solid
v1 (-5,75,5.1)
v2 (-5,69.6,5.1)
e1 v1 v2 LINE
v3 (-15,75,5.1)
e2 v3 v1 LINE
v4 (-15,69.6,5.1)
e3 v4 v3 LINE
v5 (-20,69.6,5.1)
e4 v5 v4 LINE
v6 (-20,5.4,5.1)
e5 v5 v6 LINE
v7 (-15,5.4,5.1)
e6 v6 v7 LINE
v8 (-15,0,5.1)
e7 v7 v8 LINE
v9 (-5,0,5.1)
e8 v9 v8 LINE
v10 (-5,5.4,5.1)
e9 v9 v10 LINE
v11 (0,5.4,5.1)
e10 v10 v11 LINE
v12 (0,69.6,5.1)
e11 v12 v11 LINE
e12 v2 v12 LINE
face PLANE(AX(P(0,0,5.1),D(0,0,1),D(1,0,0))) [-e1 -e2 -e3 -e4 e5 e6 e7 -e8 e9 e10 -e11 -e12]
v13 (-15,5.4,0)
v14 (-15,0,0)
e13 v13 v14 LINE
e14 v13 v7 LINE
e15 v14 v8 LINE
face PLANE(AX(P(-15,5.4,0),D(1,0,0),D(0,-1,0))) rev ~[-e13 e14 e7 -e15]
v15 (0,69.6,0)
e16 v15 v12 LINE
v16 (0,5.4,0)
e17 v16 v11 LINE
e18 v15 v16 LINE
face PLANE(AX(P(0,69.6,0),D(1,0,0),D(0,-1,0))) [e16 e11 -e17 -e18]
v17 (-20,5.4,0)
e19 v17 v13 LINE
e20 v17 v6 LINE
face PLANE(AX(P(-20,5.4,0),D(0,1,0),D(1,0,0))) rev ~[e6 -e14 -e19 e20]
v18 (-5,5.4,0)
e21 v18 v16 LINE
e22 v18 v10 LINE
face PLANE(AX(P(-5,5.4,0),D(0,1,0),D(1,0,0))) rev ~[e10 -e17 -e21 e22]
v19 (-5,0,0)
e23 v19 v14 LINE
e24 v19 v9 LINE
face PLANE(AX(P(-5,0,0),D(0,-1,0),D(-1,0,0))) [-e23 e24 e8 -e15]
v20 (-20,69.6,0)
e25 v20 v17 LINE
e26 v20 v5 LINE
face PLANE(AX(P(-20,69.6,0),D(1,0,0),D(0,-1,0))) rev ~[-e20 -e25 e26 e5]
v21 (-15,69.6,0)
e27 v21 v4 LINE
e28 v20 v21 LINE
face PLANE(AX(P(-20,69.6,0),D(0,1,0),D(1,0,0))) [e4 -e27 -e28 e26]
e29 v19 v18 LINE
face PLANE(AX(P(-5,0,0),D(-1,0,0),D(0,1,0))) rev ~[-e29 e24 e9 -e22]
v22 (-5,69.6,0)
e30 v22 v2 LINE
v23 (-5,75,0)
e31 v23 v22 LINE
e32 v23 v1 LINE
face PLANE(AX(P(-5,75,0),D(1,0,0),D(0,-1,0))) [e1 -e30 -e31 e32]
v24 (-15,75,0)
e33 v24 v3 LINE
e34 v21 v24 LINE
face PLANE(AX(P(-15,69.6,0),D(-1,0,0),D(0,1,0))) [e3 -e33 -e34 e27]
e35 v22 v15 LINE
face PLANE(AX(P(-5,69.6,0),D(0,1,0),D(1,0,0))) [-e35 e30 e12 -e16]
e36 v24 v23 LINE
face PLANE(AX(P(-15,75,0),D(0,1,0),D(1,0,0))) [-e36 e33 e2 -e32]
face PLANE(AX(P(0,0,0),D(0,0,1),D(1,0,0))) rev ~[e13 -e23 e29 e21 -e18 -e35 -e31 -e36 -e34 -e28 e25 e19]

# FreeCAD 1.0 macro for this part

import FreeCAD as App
import Part
import Sketcher
Q = App.Units.Quantity

doc = App.newDocument("Part")
body = doc.addObject("PartDesign::Body", "Body")

sketch1 = doc.addObject("Sketcher::SketchObject", "Sketch")
body.addObject(sketch1)
sketch1.AttachmentSupport = (doc.XY_Plane, [""])
sketch1.MapMode = "FlatFace"
sketch1.addGeometry([
    Part.LineSegment(App.Vector(-15, 0, 0), App.Vector(-5, 0, 0)),
    Part.LineSegment(App.Vector(-5, 0, 0), App.Vector(-5, 5, 0)),
    Part.LineSegment(App.Vector(-5, 5, 0), App.Vector(0, 5, 0)),
    Part.LineSegment(App.Vector(0, 5, 0), App.Vector(0, 70, 0)),
    Part.LineSegment(App.Vector(0, 70, 0), App.Vector(-5, 70, 0)),
    Part.LineSegment(App.Vector(-5, 70, 0), App.Vector(-5, 75, 0)),
    Part.LineSegment(App.Vector(-5, 75, 0), App.Vector(-15, 75, 0)),
    Part.LineSegment(App.Vector(-15, 75, 0), App.Vector(-15, 70, 0)),
    Part.LineSegment(App.Vector(-15, 70, 0), App.Vector(-20, 70, 0)),
    Part.LineSegment(App.Vector(-20, 70, 0), App.Vector(-20, 5, 0)),
    Part.LineSegment(App.Vector(-20, 5, 0), App.Vector(-15, 5, 0)),
    Part.LineSegment(App.Vector(-15, 5, 0), App.Vector(-15, 0, 0)),
], False)
sketch1.addConstraint([
    Sketcher.Constraint("Coincident", 0, 2, 1, 1),
    Sketcher.Constraint("Coincident", 1, 2, 2, 1),
    Sketcher.Constraint("Coincident", 2, 2, 3, 1),
    Sketcher.Constraint("Coincident", 3, 2, 4, 1),
    Sketcher.Constraint("Coincident", 4, 2, 5, 1),
    Sketcher.Constraint("Coincident", 5, 2, 6, 1),
    Sketcher.Constraint("Coincident", 6, 2, 7, 1),
    Sketcher.Constraint("Coincident", 7, 2, 8, 1),
    Sketcher.Constraint("Coincident", 8, 2, 9, 1),
    Sketcher.Constraint("Coincident", 9, 2, 10, 1),
    Sketcher.Constraint("Coincident", 10, 2, 11, 1),
    Sketcher.Constraint("Coincident", 11, 2, 0, 1),
    Sketcher.Constraint("Horizontal", 0),
    Sketcher.Constraint("Vertical", 1),
    Sketcher.Constraint("Horizontal", 2),
    Sketcher.Constraint("Vertical", 3),
    Sketcher.Constraint("Horizontal", 4),
    Sketcher.Constraint("Vertical", 5),
    Sketcher.Constraint("Horizontal", 6),
    Sketcher.Constraint("Vertical", 7),
    Sketcher.Constraint("Horizontal", 8),
    Sketcher.Constraint("Vertical", 9),
    Sketcher.Constraint("Horizontal", 10),
    Sketcher.Constraint("Vertical", 11),
    Sketcher.Constraint("PointOnObject", 0, 2, -1),
    Sketcher.Constraint("PointOnObject", 2, 2, -2),
    Sketcher.Constraint("Horizontal", 4, 2, 7, 2),
    Sketcher.Constraint("Horizontal", 2, 2, 9, 2),
    Sketcher.Constraint("Vertical", 1, 2, 4, 2),
    Sketcher.Constraint("Vertical", 7, 2, 10, 2),
    Sketcher.Constraint("Equal", 4, 8),
    Sketcher.Constraint("Equal", 1, 5),
    Sketcher.Constraint("DistanceX", 0, 1, 0, 2, Q("10 mm")),
    Sketcher.Constraint("DistanceX", 2, 1, 2, 2, Q("5 mm")),
    Sketcher.Constraint("DistanceY", 1, 1, 1, 2, Q("5.4 mm")),
    Sketcher.Constraint("DistanceY", -1, 1, 5, 2, Q("75 mm")),
])
pad1 = doc.addObject("PartDesign::Pad", "Pad")
body.addObject(pad1)
pad1.Profile = sketch1
pad1.Length = 5.1

doc.recompute()
